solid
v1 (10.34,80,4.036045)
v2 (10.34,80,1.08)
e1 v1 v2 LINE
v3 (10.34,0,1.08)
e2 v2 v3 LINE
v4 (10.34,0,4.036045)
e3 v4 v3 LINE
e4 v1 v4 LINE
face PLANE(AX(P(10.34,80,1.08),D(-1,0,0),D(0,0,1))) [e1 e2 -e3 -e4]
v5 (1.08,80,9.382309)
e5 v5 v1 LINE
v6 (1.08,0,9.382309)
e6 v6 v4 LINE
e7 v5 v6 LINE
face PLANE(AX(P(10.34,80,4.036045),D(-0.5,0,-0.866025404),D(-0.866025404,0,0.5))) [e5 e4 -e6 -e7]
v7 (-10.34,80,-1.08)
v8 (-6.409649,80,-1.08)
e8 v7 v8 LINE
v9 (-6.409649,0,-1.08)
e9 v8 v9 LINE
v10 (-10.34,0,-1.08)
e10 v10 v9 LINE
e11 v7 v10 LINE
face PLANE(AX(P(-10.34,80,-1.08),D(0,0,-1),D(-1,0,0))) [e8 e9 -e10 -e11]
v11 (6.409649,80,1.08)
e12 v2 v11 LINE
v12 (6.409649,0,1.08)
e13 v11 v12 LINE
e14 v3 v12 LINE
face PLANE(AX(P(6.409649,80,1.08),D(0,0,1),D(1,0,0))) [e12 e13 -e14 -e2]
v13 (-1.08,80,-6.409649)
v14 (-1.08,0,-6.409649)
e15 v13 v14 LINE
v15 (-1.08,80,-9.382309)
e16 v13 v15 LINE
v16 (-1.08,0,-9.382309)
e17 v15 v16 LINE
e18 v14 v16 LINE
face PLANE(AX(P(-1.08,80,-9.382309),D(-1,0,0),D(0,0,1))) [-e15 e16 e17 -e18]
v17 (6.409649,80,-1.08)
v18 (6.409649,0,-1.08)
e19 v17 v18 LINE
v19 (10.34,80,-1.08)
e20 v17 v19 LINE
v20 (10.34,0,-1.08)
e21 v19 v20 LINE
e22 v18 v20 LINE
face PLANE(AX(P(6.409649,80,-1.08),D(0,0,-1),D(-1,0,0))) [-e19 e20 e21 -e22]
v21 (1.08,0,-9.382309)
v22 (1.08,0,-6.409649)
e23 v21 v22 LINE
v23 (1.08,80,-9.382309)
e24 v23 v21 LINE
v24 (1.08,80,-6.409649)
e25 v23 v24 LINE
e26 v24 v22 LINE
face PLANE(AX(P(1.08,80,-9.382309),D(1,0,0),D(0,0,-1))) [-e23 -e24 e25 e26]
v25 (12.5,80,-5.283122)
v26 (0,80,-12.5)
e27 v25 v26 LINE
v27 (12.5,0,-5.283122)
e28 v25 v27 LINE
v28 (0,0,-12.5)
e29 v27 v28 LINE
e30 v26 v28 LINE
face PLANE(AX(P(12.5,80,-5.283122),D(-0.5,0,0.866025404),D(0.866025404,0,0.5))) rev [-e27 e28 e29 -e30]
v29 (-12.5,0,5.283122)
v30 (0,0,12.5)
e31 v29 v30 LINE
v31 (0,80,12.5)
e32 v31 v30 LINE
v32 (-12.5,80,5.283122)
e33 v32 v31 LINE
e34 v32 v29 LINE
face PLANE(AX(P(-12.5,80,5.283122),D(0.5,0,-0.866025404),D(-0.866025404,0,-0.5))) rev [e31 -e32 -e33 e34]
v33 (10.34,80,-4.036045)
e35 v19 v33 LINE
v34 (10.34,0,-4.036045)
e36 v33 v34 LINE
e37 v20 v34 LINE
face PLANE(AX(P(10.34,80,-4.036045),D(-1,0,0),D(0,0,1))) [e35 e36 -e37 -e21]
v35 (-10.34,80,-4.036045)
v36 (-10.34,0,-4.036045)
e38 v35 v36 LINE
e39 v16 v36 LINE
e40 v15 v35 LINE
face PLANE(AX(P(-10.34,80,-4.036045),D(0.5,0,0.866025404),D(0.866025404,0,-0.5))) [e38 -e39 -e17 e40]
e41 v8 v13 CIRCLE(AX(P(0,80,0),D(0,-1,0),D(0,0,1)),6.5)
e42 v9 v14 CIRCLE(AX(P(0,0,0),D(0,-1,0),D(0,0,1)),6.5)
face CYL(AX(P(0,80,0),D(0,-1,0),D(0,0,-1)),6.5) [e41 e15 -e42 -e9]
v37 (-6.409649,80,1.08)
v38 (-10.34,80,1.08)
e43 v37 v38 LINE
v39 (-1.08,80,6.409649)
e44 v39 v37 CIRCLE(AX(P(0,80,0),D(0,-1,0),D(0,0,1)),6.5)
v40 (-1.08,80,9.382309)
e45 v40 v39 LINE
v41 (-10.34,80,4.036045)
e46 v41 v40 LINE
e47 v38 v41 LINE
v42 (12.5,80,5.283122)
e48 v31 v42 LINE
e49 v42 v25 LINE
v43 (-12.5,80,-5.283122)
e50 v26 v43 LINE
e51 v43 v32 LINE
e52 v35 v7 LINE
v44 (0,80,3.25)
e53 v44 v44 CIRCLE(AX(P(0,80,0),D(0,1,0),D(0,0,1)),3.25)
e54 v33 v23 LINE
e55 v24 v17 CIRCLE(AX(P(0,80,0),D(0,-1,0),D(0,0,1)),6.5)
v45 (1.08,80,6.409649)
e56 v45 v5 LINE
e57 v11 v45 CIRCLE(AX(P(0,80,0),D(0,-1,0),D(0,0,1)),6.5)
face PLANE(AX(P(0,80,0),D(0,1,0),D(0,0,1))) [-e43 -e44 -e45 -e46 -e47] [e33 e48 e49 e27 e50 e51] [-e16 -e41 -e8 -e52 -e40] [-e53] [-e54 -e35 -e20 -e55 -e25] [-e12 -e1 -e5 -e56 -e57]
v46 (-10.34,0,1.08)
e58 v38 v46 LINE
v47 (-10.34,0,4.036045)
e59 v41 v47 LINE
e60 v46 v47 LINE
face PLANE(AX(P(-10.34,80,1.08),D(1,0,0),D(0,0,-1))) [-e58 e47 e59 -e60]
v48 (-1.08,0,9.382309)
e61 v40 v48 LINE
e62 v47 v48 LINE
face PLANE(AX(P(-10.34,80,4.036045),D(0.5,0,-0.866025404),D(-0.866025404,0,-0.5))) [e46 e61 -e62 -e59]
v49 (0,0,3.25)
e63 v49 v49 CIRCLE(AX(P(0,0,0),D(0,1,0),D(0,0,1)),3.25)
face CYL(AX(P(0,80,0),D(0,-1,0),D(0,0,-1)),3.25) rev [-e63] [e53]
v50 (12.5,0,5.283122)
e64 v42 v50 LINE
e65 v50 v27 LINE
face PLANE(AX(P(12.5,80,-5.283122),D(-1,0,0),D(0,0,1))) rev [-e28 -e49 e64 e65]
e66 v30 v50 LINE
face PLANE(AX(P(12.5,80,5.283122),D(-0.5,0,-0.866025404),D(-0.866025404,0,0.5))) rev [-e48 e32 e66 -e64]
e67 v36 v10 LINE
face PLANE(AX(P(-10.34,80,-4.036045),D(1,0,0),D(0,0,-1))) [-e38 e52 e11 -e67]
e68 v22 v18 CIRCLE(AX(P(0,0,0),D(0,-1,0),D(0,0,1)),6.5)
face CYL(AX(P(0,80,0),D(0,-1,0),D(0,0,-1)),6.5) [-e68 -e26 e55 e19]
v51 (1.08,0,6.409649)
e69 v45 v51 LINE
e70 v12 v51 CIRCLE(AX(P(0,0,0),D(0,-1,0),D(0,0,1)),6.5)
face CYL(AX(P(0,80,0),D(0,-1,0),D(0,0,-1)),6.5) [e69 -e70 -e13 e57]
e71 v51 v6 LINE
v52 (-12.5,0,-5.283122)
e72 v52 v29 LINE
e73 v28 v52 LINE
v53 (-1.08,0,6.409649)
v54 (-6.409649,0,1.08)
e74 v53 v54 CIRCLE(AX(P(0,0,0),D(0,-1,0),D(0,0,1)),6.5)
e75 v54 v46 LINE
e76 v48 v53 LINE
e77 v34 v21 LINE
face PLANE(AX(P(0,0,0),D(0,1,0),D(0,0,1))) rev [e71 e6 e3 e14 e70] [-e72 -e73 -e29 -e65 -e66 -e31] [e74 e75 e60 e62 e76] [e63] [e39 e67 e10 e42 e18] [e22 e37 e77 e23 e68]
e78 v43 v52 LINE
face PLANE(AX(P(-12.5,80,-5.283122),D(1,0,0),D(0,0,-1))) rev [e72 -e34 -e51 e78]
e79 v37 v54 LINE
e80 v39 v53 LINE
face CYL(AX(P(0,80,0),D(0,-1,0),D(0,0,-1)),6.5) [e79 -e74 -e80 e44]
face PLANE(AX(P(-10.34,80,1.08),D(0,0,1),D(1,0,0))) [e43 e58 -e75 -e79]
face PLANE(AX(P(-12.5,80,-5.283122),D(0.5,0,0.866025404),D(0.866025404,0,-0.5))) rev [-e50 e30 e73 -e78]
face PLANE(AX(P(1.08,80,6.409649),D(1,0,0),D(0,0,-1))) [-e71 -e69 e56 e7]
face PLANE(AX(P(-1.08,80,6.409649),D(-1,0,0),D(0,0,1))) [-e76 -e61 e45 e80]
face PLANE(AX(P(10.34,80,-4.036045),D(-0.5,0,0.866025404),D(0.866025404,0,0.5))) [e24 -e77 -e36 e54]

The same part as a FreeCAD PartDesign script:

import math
import FreeCAD as App
import Part
import Sketcher
from FreeCAD import Vector
Q = App.Units.Quantity


def add_polygon(sketch, points):
    """Adds a closed chain of lines whose ends are joined by coincident constraints."""
    first, n = sketch.GeometryCount, len(points)
    for a, b in zip(points, points[1:] + points[:1]):
        sketch.addGeometry(Part.LineSegment(App.Vector(*a, 0), App.Vector(*b, 0)), False)
    for i in range(n):
        sketch.addConstraint(Sketcher.Constraint("Coincident", first + i, 2, first + (i + 1) % n, 1))

doc = App.newDocument("Part")
body = doc.addObject("PartDesign::Body", "Body")

sketch1 = body.newObject("Sketcher::SketchObject", "Sketch")
sketch1.AttachmentSupport = (doc.getObject("XZ_Plane"), [""])
sketch1.MapMode = "FlatFace"
add_polygon(sketch1, [(-12.5, -5.283122), (-12.5, 5.283122), (0, 12.5), (12.5, 5.283122), (12.5, -5.283122), (0, -12.5)])
sketch1.addGeometry(Part.LineSegment(Vector(-10.34, 4.036045, 0), Vector(-10.34, 1.08, 0)), False)
sketch1.addGeometry(Part.LineSegment(Vector(-10.34, 1.08, 0), Vector(-6.409649, 1.08, 0)), False)
sketch1.addGeometry(Part.ArcOfCircle(Part.Circle(Vector(0, 0, 0), Vector(0, 0, 1), 6.5), math.radians(99.56427), math.radians(170.43573)), False)
sketch1.addGeometry(Part.LineSegment(Vector(-1.08, 6.409649, 0), Vector(-1.08, 9.382309, 0)), False)
sketch1.addGeometry(Part.LineSegment(Vector(-1.08, 9.382309, 0), Vector(-10.34, 4.036045, 0)), False)
sketch1.addGeometry(Part.LineSegment(Vector(1.08, 9.382309, 0), Vector(1.08, 6.409649, 0)), False)
sketch1.addGeometry(Part.ArcOfCircle(Part.Circle(Vector(0, 0, 0), Vector(0, 0, 1), 6.5), math.radians(9.56427), math.radians(80.43573)), False)
sketch1.addGeometry(Part.LineSegment(Vector(6.409649, 1.08, 0), Vector(10.34, 1.08, 0)), False)
sketch1.addGeometry(Part.LineSegment(Vector(10.34, 1.08, 0), Vector(10.34, 4.036045, 0)), False)
sketch1.addGeometry(Part.LineSegment(Vector(10.34, 4.036045, 0), Vector(1.08, 9.382309, 0)), False)
sketch1.addGeometry(Part.LineSegment(Vector(-10.34, -4.036045, 0), Vector(-1.08, -9.382309, 0)), False)
sketch1.addGeometry(Part.LineSegment(Vector(-1.08, -9.382309, 0), Vector(-1.08, -6.409649, 0)), False)
sketch1.addGeometry(Part.ArcOfCircle(Part.Circle(Vector(0, 0, 0), Vector(0, 0, 1), 6.5), math.radians(-170.43573), math.radians(-99.56427)), False)
sketch1.addGeometry(Part.LineSegment(Vector(-6.409649, -1.08, 0), Vector(-10.34, -1.08, 0)), False)
sketch1.addGeometry(Part.LineSegment(Vector(-10.34, -1.08, 0), Vector(-10.34, -4.036045, 0)), False)
sketch1.addGeometry(Part.Circle(Vector(0, 0, 0), Vector(0, 0, 1), 3.25), False)
sketch1.addGeometry(Part.LineSegment(Vector(1.08, -6.409649, 0), Vector(1.08, -9.382309, 0)), False)
sketch1.addGeometry(Part.LineSegment(Vector(1.08, -9.382309, 0), Vector(10.34, -4.036045, 0)), False)
sketch1.addGeometry(Part.LineSegment(Vector(10.34, -4.036045, 0), Vector(10.34, -1.08, 0)), False)
sketch1.addGeometry(Part.LineSegment(Vector(10.34, -1.08, 0), Vector(6.409649, -1.08, 0)), False)
sketch1.addGeometry(Part.ArcOfCircle(Part.Circle(Vector(0, 0, 0), Vector(0, 0, 1), 6.5), math.radians(-80.43573), math.radians(-9.56427)), False)
sketch1.addConstraint([
    Sketcher.Constraint("Coincident", 6, 2, 7, 1),
    Sketcher.Constraint("Coincident", 7, 2, 8, 2),
    Sketcher.Constraint("Coincident", 8, 1, 9, 1),
    Sketcher.Constraint("Coincident", 9, 2, 10, 1),
    Sketcher.Constraint("Coincident", 10, 2, 6, 1),
    Sketcher.Constraint("Coincident", 11, 2, 12, 2),
    Sketcher.Constraint("Coincident", 12, 1, 13, 1),
    Sketcher.Constraint("Coincident", 13, 2, 14, 1),
    Sketcher.Constraint("Coincident", 14, 2, 15, 1),
    Sketcher.Constraint("Coincident", 15, 2, 11, 1),
    Sketcher.Constraint("Coincident", 16, 2, 17, 1),
    Sketcher.Constraint("Coincident", 17, 2, 18, 2),
    Sketcher.Constraint("Coincident", 18, 1, 19, 1),
    Sketcher.Constraint("Coincident", 19, 2, 20, 1),
    Sketcher.Constraint("Coincident", 20, 2, 16, 1),
    Sketcher.Constraint("Coincident", 22, 2, 23, 1),
    Sketcher.Constraint("Coincident", 23, 2, 24, 1),
    Sketcher.Constraint("Coincident", 24, 2, 25, 1),
    Sketcher.Constraint("Coincident", 25, 2, 26, 2),
    Sketcher.Constraint("Coincident", 26, 1, 22, 1),
    Sketcher.Constraint("Vertical", 0),
    Sketcher.Constraint("Vertical", 3),
    Sketcher.Constraint("Vertical", 6),
    Sketcher.Constraint("Horizontal", 7),
    Sketcher.Constraint("Vertical", 9),
    Sketcher.Constraint("Vertical", 11),
    Sketcher.Constraint("Horizontal", 13),
    Sketcher.Constraint("Vertical", 14),
    Sketcher.Constraint("Vertical", 17),
    Sketcher.Constraint("Horizontal", 19),
    Sketcher.Constraint("Vertical", 20),
    Sketcher.Constraint("Vertical", 22),
    Sketcher.Constraint("Vertical", 24),
    Sketcher.Constraint("Horizontal", 25),
    Sketcher.Constraint("Coincident", 8, 3, -1, 1),
    Sketcher.Constraint("Coincident", 12, 3, -1, 1),
    Sketcher.Constraint("Coincident", 18, 3, -1, 1),
    Sketcher.Constraint("Coincident", 21, 3, -1, 1),
    Sketcher.Constraint("Coincident", 26, 3, -1, 1),
    Sketcher.Constraint("Equal", 8, 12),
    Sketcher.Constraint("Equal", 12, 18),
    Sketcher.Constraint("Equal", 18, 26),
    Sketcher.Constraint("Symmetric", 0, 2, 3, 2, -1, 1),
    Sketcher.Constraint("Symmetric", 1, 2, 4, 2, -1, 1),
    Sketcher.Constraint("Symmetric", 15, 2, 16, 2, -1, 1),
    Sketcher.Constraint("Symmetric", 13, 2, 19, 2, -1, 1),
    Sketcher.Constraint("Symmetric", 9, 2, 22, 2, -1, 1),
    Sketcher.Constraint("Symmetric", 10, 2, 23, 2, -1, 1),
    Sketcher.Constraint("Symmetric", 6, 2, 13, 2, -2),
    Sketcher.Constraint("Symmetric", 9, 2, 15, 2, -2),
    Sketcher.Constraint("PointOnObject", 1, 2, -2),
    Sketcher.Constraint("Parallel", 2, 5),
    Sketcher.Constraint("Parallel", 4, 10),
    Sketcher.Constraint("Parallel", 5, 15),
    Sketcher.Constraint("Parallel", 15, 16),
    Sketcher.Constraint("Horizontal", 0, 2, 2, 2),
    Sketcher.Constraint("Horizontal", 19, 2, 24, 2),
    Sketcher.Constraint("Diameter", 21, 6.5),
    Sketcher.Constraint("Radius", 8, 6.5),
    Sketcher.Constraint("Angle", 1, Q("30 deg")),
    Sketcher.Constraint("DistanceX", 0, 2, -1, 1, 12.5),
    Sketcher.Constraint("DistanceY", -1, 1, 1, 2, 12.5),
    Sketcher.Constraint("DistanceX", 6, 2, -1, 1, 10.34),
    Sketcher.Constraint("DistanceY", -1, 1, 6, 2, 1.08),
    Sketcher.Constraint("DistanceX", 8, 1, -1, 1, 1.08),
    Sketcher.Constraint("DistanceY", 9, 1, 9, 2, 2.97266),
])
pad1 = body.newObject("PartDesign::Pad", "Pad")
pad1.Profile = sketch1
pad1.Length = 80
pad1.Reversed = True

doc.recompute()
